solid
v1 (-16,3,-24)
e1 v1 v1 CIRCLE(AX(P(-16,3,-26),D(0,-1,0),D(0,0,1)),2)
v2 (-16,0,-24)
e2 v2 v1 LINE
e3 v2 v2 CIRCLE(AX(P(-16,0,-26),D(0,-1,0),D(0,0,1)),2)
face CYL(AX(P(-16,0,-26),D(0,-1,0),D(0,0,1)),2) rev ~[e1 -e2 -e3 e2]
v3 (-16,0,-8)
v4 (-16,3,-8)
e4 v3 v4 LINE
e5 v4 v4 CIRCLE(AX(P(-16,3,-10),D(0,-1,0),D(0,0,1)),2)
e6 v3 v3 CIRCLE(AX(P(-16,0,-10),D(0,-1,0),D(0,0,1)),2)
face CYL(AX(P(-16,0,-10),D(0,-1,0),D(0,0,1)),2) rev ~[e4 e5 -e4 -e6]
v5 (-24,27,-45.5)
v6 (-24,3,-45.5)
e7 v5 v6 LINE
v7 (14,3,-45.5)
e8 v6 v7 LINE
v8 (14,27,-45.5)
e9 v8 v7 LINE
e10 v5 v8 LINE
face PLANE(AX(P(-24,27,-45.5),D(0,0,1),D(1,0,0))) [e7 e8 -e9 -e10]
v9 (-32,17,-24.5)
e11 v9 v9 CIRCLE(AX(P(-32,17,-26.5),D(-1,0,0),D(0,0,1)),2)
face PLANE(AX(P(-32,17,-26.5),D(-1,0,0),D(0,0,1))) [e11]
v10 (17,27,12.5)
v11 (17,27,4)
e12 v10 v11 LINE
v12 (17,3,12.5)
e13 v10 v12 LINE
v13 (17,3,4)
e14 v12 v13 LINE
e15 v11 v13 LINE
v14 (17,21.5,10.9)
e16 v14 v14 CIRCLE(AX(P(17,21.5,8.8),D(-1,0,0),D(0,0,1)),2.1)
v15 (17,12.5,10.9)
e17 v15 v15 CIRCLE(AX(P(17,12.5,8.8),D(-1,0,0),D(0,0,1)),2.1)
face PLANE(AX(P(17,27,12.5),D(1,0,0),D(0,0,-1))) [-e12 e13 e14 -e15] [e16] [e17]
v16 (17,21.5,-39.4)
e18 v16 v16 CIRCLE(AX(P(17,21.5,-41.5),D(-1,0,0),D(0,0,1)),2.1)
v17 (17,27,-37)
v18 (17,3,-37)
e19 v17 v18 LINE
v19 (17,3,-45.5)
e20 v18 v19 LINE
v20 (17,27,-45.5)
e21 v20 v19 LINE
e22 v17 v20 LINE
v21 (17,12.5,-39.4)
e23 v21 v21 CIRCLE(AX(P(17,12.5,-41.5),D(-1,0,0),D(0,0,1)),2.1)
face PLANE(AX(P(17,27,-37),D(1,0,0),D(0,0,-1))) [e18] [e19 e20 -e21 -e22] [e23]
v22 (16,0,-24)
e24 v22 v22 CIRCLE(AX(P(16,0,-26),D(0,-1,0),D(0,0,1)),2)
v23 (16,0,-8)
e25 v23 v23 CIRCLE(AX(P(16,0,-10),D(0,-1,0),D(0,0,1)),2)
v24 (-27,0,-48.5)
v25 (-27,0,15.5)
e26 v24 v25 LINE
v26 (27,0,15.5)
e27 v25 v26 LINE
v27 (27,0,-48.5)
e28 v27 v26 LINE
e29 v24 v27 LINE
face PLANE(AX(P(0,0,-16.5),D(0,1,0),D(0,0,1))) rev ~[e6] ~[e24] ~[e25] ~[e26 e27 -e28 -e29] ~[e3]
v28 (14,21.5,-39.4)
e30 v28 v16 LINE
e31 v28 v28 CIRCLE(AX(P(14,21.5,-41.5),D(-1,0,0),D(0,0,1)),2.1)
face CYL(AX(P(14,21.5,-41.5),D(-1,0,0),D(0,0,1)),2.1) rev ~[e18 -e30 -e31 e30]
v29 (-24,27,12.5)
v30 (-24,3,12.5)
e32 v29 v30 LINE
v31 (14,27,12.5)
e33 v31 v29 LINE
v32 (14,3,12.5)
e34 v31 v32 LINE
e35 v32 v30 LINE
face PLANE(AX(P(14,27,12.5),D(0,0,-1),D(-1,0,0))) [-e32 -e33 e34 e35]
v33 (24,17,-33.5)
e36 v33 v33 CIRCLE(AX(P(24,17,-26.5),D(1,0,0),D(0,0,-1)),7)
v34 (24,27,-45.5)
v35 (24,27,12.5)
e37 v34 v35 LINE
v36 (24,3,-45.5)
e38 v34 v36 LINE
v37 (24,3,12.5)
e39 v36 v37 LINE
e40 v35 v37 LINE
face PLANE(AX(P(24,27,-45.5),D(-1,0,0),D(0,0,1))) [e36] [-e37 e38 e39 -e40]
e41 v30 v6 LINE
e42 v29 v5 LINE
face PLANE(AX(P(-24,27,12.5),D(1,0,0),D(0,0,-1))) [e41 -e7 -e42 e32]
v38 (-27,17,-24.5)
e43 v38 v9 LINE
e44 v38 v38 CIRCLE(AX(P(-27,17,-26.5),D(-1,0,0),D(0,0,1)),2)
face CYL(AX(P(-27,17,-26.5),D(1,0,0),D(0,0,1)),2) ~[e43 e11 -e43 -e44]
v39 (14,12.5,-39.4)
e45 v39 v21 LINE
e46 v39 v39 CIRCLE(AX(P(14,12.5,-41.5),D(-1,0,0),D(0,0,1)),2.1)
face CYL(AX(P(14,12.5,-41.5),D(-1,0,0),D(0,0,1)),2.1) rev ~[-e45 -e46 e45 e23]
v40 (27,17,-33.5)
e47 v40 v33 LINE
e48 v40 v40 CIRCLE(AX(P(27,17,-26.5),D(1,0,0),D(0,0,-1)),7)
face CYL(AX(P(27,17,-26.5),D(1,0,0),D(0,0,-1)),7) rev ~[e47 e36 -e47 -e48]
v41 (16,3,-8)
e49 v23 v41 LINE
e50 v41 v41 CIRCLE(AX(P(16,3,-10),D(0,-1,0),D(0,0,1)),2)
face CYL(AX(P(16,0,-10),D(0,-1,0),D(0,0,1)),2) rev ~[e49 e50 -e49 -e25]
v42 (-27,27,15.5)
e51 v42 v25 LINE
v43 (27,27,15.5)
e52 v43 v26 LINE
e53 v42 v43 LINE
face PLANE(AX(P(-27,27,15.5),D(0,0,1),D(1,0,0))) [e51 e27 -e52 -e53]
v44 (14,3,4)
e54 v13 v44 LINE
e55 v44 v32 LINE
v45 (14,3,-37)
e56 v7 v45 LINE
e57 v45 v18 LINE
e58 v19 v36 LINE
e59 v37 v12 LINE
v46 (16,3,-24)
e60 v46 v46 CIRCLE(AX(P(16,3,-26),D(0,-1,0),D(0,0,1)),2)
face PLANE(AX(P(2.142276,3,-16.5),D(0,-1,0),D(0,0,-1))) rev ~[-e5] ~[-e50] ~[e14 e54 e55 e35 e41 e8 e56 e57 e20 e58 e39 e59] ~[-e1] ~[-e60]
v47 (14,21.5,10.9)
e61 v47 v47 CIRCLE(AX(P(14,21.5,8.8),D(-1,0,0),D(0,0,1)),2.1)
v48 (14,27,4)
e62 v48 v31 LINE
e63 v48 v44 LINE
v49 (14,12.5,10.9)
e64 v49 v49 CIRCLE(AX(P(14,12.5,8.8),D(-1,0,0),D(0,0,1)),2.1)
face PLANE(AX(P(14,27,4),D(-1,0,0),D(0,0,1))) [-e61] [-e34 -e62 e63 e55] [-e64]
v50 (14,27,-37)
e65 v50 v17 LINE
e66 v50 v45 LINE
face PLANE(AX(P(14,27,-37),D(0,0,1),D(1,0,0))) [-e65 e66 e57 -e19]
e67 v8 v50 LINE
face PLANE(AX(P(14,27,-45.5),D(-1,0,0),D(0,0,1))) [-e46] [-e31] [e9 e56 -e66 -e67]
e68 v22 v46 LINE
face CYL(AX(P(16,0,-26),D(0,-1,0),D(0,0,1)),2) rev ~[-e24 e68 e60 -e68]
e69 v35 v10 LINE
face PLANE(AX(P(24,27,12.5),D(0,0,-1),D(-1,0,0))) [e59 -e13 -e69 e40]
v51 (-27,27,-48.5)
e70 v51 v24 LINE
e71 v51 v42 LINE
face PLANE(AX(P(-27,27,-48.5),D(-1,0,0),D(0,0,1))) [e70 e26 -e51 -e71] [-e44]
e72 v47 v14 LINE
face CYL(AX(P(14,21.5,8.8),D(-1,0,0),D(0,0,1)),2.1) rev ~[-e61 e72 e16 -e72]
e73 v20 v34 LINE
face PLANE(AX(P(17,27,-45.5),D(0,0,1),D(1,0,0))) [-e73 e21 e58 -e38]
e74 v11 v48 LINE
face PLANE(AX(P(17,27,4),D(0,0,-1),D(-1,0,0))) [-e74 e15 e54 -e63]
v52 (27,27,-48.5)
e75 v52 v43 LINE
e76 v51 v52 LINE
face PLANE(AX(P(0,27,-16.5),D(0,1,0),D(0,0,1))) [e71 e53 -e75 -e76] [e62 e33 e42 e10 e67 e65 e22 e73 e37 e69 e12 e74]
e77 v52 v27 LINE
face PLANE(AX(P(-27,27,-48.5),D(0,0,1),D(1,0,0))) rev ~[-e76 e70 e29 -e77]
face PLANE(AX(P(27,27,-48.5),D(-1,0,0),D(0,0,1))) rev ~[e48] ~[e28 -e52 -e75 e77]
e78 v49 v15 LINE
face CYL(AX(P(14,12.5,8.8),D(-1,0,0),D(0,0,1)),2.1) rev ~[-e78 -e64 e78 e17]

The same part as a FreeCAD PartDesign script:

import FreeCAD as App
import Part
import Sketcher
Q = App.Units.Quantity


def add_polygon(sketch, points):
    """Adds a closed chain of lines whose ends are joined by coincident constraints."""
    first, n = sketch.GeometryCount, len(points)
    for a, b in zip(points, points[1:] + points[:1]):
        sketch.addGeometry(Part.LineSegment(App.Vector(*a, 0), App.Vector(*b, 0)), False)
    for i in range(n):
        sketch.addConstraint(Sketcher.Constraint("Coincident", first + i, 2, first + (i + 1) % n, 1))

doc = App.newDocument("Part")
body = doc.addObject("PartDesign::Body", "Body")

sketch1 = body.newObject("Sketcher::SketchObject", "Sketch")
sketch1.AttachmentSupport = (doc.getObject("XY_Plane"), [""])
sketch1.MapMode = "FlatFace"
add_polygon(sketch1, [(-12, 42), (-12, -12), (52, -12), (52, 42)])
sketch1.addConstraint(Sketcher.Constraint("Vertical", 0))
sketch1.addConstraint(Sketcher.Constraint("Horizontal", 1))
sketch1.addConstraint(Sketcher.Constraint("Vertical", 2))
sketch1.addConstraint(Sketcher.Constraint("Horizontal", 3))
sketch1.addConstraint(Sketcher.Constraint("DistanceX", 1, 1, 1, 2, Q("64 mm")))
sketch1.addConstraint(Sketcher.Constraint("DistanceY", 0, 2, 0, 1, Q("54 mm")))
sketch1.addConstraint(Sketcher.Constraint("DistanceX", 0, 2, -1, 1, Q("12 mm")))
sketch1.addConstraint(Sketcher.Constraint("DistanceY", 0, 2, -1, 1, Q("12 mm")))
pad1 = body.newObject("PartDesign::Pad", "Pad")
pad1.Profile = sketch1
pad1.Length = 27
pad1.Reversed = True

sketch2 = body.newObject("Sketcher::SketchObject", "Sketch001")
sketch2.AttachmentSupport = (doc.getObject("XY_Plane"), [""])
sketch2.MapMode = "FlatFace"
add_polygon(sketch2, [(-9, 39), (-9, 32), (-0.5, 32), (-0.5, 29), (-9, 29), (-9, -9), (49, -9), (49, 29), (40.5, 29), (40.5, 32), (49, 32), (49, 39)])
sketch2.addConstraint(Sketcher.Constraint("Vertical", 0))
sketch2.addConstraint(Sketcher.Constraint("Horizontal", 1))
sketch2.addConstraint(Sketcher.Constraint("Vertical", 2))
sketch2.addConstraint(Sketcher.Constraint("Horizontal", 3))
sketch2.addConstraint(Sketcher.Constraint("Vertical", 4))
sketch2.addConstraint(Sketcher.Constraint("Horizontal", 5))
sketch2.addConstraint(Sketcher.Constraint("Vertical", 6))
sketch2.addConstraint(Sketcher.Constraint("Horizontal", 7))
sketch2.addConstraint(Sketcher.Constraint("Vertical", 8))
sketch2.addConstraint(Sketcher.Constraint("Horizontal", 9))
sketch2.addConstraint(Sketcher.Constraint("Vertical", 10))
sketch2.addConstraint(Sketcher.Constraint("Horizontal", 11))
sketch2.addConstraint(Sketcher.Constraint("Horizontal", 3, 2, 6, 2))
sketch2.addConstraint(Sketcher.Constraint("Horizontal", 1, 2, 8, 2))
sketch2.addConstraint(Sketcher.Constraint("Vertical", 0, 2, 3, 2))
sketch2.addConstraint(Sketcher.Constraint("Vertical", 6, 2, 9, 2))
sketch2.addConstraint(Sketcher.Constraint("Equal", 3, 7))
sketch2.addConstraint(Sketcher.Constraint("DistanceX", 5, 1, 5, 2, Q("58 mm")))
sketch2.addConstraint(Sketcher.Constraint("DistanceY", 0, 2, 0, 1, Q("7 mm")))
sketch2.addConstraint(Sketcher.Constraint("DistanceY", 2, 2, 2, 1, Q("3 mm")))
sketch2.addConstraint(Sketcher.Constraint("DistanceY", 4, 2, 4, 1, Q("38 mm")))
sketch2.addConstraint(Sketcher.Constraint("DistanceX", 1, 1, 1, 2, Q("8.5 mm")))
sketch2.addConstraint(Sketcher.Constraint("DistanceX", 0, 2, -1, 1, Q("9 mm")))
sketch2.addConstraint(Sketcher.Constraint("DistanceY", -1, 1, 0, 2, Q("32 mm")))
pocket1 = body.newObject("PartDesign::Pocket", "Pocket")
pocket1.Profile = sketch2
pocket1.Length = 24

sketch3 = body.newObject("Sketcher::SketchObject", "Sketch002")
sketch3.AttachmentSupport = (doc.getObject("XZ_Plane"), [""])
sketch3.MapMode = "FlatFace"
sketch3.AttachmentOffset = App.Placement(App.Vector(0, 0, -29), App.Rotation())
sketch3.addGeometry(Part.Circle(App.Vector(45.3, -5.5, 0), App.Vector(0, 0, 1), 2.1), False)
sketch3.addGeometry(Part.Circle(App.Vector(45.3, -14.5, 0), App.Vector(0, 0, 1), 2.1), False)
sketch3.addGeometry(Part.Circle(App.Vector(-5, -5.5, 0), App.Vector(0, 0, 1), 2.1), False)
sketch3.addGeometry(Part.Circle(App.Vector(-5, -14.5, 0), App.Vector(0, 0, 1), 2.1), False)
sketch3.addConstraint(Sketcher.Constraint("Equal", 0, 1))
sketch3.addConstraint(Sketcher.Constraint("Equal", 1, 2))
sketch3.addConstraint(Sketcher.Constraint("Equal", 2, 3))
sketch3.addConstraint(Sketcher.Constraint("Horizontal", 0, 3, 2, 3))
sketch3.addConstraint(Sketcher.Constraint("Horizontal", 1, 3, 3, 3))
sketch3.addConstraint(Sketcher.Constraint("Vertical", 0, 3, 1, 3))
sketch3.addConstraint(Sketcher.Constraint("Vertical", 2, 3, 3, 3))
sketch3.addConstraint(Sketcher.Constraint("Diameter", 0, Q("4.2 mm")))
sketch3.addConstraint(Sketcher.Constraint("DistanceX", 2, 3, -1, 1, Q("5 mm")))
sketch3.addConstraint(Sketcher.Constraint("DistanceY", 1, 3, 0, 3, Q("9 mm")))
sketch3.addConstraint(Sketcher.Constraint("DistanceX", -1, 1, 0, 3, Q("45.3 mm")))
sketch3.addConstraint(Sketcher.Constraint("DistanceY", 0, 3, -1, 1, Q("5.5 mm")))
pocket2 = body.newObject("PartDesign::Pocket", "Pocket001")
pocket2.Profile = sketch3
pocket2.Length = 3

sketch4 = body.newObject("Sketcher::SketchObject", "Sketch003")
sketch4.AttachmentSupport = (doc.getObject("XZ_Plane"), [""])
sketch4.MapMode = "FlatFace"
sketch4.AttachmentOffset = App.Placement(App.Vector(0, 0, -42), App.Rotation())
sketch4.addGeometry(Part.Circle(App.Vector(10, -10, 0), App.Vector(0, 0, 1), 7), False)
sketch4.addConstraint(Sketcher.Constraint("Diameter", 0, Q("14 mm")))
sketch4.addConstraint(Sketcher.Constraint("DistanceX", -1, 1, 0, 3, Q("10 mm")))
sketch4.addConstraint(Sketcher.Constraint("DistanceY", 0, 3, -1, 1, Q("10 mm")))
pocket3 = body.newObject("PartDesign::Pocket", "Pocket002")
pocket3.Profile = sketch4
pocket3.Length = 3
pocket3.Reversed = True

sketch5 = body.newObject("Sketcher::SketchObject", "Sketch004")
sketch5.AttachmentSupport = (doc.getObject("XZ_Plane"), [""])
sketch5.MapMode = "FlatFace"
sketch5.AttachmentOffset = App.Placement(App.Vector(0, 0, 12), App.Rotation())
sketch5.addGeometry(Part.Circle(App.Vector(10, -10, 0), App.Vector(0, 0, 1), 2), False)
sketch5.addConstraint(Sketcher.Constraint("Diameter", 0, Q("4 mm")))
sketch5.addConstraint(Sketcher.Constraint("DistanceX", -1, 1, 0, 3, Q("10 mm")))
sketch5.addConstraint(Sketcher.Constraint("DistanceY", 0, 3, -1, 1, Q("10 mm")))
pad2 = body.newObject("PartDesign::Pad", "Pad001")
pad2.Profile = sketch5
pad2.Length = 5

sketch6 = body.newObject("Sketcher::SketchObject", "Sketch005")
sketch6.AttachmentSupport = (doc.getObject("XY_Plane"), [""])
sketch6.MapMode = "FlatFace"
sketch6.AttachmentOffset = App.Placement(App.Vector(0, 0, -27), App.Rotation())
sketch6.addGeometry(Part.Circle(App.Vector(26.5, -1, 0), App.Vector(0, 0, 1), 2), False)
sketch6.addGeometry(Part.Circle(App.Vector(10.5, -1, 0), App.Vector(0, 0, 1), 2), False)
sketch6.addGeometry(Part.Circle(App.Vector(26.5, 31, 0), App.Vector(0, 0, 1), 2), False)
sketch6.addGeometry(Part.Circle(App.Vector(10.5, 31, 0), App.Vector(0, 0, 1), 2), False)
sketch6.addConstraint(Sketcher.Constraint("Equal", 0, 1))
sketch6.addConstraint(Sketcher.Constraint("Equal", 1, 2))
sketch6.addConstraint(Sketcher.Constraint("Equal", 2, 3))
sketch6.addConstraint(Sketcher.Constraint("Horizontal", 0, 3, 1, 3))
sketch6.addConstraint(Sketcher.Constraint("Horizontal", 2, 3, 3, 3))
sketch6.addConstraint(Sketcher.Constraint("Vertical", 0, 3, 2, 3))
sketch6.addConstraint(Sketcher.Constraint("Vertical", 1, 3, 3, 3))
sketch6.addConstraint(Sketcher.Constraint("Diameter", 0, Q("4 mm")))
sketch6.addConstraint(Sketcher.Constraint("DistanceY", 0, 3, -1, 1, Q("1 mm")))
sketch6.addConstraint(Sketcher.Constraint("DistanceY", -1, 1, 2, 3, Q("31 mm")))
sketch6.addConstraint(Sketcher.Constraint("DistanceX", 1, 3, 0, 3, Q("16 mm")))
sketch6.addConstraint(Sketcher.Constraint("DistanceX", -1, 1, 0, 3, Q("26.5 mm")))
pocket4 = body.newObject("PartDesign::Pocket", "Pocket003")
pocket4.Profile = sketch6
pocket4.Length = 3
pocket4.Reversed = True
body2 = doc.addObject("PartDesign::Body", "Body001")
doc.recompute()

body.Placement = App.Placement(App.Vector(0, 0, 0), App.Rotation(App.Vector(0, 1, 0), 270))
boolean = body2.newObject("PartDesign::Boolean", "Boolean")
boolean.Type = "Fuse"
boolean.addObjects([body])
body3 = doc.addObject("PartDesign::Body", "Body002")
doc.recompute()

body2.Placement = App.Placement(App.Vector(-15, 27, -36.5), App.Rotation(App.Vector(0, 0, 1), 270))
boolean2 = body3.newObject("PartDesign::Boolean", "Boolean001")
boolean2.Type = "Fuse"
boolean2.addObjects([body2])

doc.recompute()
